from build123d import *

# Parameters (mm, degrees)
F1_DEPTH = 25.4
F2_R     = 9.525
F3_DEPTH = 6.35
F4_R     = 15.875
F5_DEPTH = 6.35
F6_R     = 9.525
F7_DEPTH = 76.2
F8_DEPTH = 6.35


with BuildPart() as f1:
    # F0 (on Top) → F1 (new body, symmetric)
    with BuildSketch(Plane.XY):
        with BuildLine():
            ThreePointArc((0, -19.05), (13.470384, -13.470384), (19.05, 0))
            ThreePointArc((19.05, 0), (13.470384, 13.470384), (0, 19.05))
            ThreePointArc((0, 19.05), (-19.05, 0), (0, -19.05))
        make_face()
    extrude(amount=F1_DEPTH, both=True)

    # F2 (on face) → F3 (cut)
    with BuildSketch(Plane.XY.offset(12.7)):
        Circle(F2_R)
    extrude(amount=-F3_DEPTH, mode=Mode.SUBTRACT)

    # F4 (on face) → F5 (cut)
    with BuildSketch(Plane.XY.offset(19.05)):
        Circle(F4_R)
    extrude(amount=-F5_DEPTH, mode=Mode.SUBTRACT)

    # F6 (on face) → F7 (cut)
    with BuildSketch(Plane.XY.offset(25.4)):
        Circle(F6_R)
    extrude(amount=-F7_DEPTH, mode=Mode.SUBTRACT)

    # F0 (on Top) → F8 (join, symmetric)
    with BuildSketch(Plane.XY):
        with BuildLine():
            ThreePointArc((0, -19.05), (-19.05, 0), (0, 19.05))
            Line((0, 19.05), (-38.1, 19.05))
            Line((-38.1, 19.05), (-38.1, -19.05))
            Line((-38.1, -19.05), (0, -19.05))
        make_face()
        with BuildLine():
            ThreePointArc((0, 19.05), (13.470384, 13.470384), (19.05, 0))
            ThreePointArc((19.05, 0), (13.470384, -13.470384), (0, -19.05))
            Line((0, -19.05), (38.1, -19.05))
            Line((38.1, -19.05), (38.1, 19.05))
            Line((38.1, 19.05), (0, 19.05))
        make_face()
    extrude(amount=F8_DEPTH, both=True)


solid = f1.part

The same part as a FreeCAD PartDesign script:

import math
import FreeCAD as App
import Part
import Sketcher
from FreeCAD import Vector
Q = App.Units.Quantity

doc = App.newDocument("Part")
params = doc.addObject("Spreadsheet::Sheet", "Params")
for row, (alias, value) in enumerate([
    ("sketch1_radius", "0.75 in"),
    ("pad1_length", "2 in"),
    ("sketch2_diameter", "0.75 in"),
    ("pocket1_length", "0.25 in"),
    ("sketch3_diameter", "1.25 in"),
    ("pocket2_length", "0.25 in"),
    ("sketch4_diameter", "0.75 in"),
    ("pocket3_length", "3 in"),
    ("sketch5_radius", "0.75 in"),
    ("pad2_length", "0.5 in"),
], start=1):
    params.set(f"A{row}", alias)
    params.set(f"B{row}", "=" + value)
    params.setAlias(f"B{row}", alias)

body = doc.addObject("PartDesign::Body", "Body")

# Sketch on XY plane
sketch1 = doc.addObject("Sketcher::SketchObject", "Sketch")
body.addObject(sketch1)
sketch1.AttachmentSupport = (doc.XY_Plane, [""])
sketch1.MapMode = "FlatFace"
sketch1.addGeometry([
    Part.ArcOfCircle(Part.Circle(Vector(0, 0, 0), Vector(0, 0, 1), 19), math.radians(-90), math.radians(0)),
    Part.ArcOfCircle(Part.Circle(Vector(0, 0, 0), Vector(0, 0, 1), 19), math.radians(0), math.radians(90)),
    Part.ArcOfCircle(Part.Circle(Vector(0, 0, 0), Vector(0, 0, 1), 19), math.radians(90), math.radians(270)),
], False)
sketch1.addConstraint([
    Sketcher.Constraint("Tangent", 0, 2, 1, 1),
    Sketcher.Constraint("Tangent", 1, 2, 2, 1),
    Sketcher.Constraint("Tangent", 2, 2, 0, 1),
    Sketcher.Constraint("Coincident", 0, 3, -1, 1),
    Sketcher.Constraint("PointOnObject", 0, 2, -1),
    Sketcher.Constraint("PointOnObject", 1, 2, -2),
    Sketcher.Constraint("PointOnObject", 2, 2, -2),
    Sketcher.Constraint("Radius", 0, Q("0.75 in")),
])
sketch1.setExpression("Constraints[7]", "Params.sketch1_radius")
pad1 = doc.addObject("PartDesign::Pad", "Pad")
body.addObject(pad1)
pad1.Profile = sketch1
pad1.setExpression("Length", "Params.pad1_length")
pad1.Midplane = True

# Sketch on XY plane
sketch2 = doc.addObject("Sketcher::SketchObject", "Sketch001")
body.addObject(sketch2)
sketch2.AttachmentSupport = (doc.XY_Plane, [""])
sketch2.MapMode = "FlatFace"
sketch2.AttachmentOffset = App.Placement(Vector(0, 0, 0.5 * 25.4), App.Rotation())
sketch2.addGeometry(Part.Circle(Vector(0, 0, 0), Vector(0, 0, 1), 10), False)
sketch2.addConstraint([
    Sketcher.Constraint("Coincident", 0, 3, -1, 1),
    Sketcher.Constraint("Diameter", 0, Q("0.75 in")),
])
sketch2.setExpression("Constraints[1]", "Params.sketch2_diameter")
pocket1 = doc.addObject("PartDesign::Pocket", "Pocket")
body.addObject(pocket1)
pocket1.Profile = sketch2
pocket1.setExpression("Length", "Params.pocket1_length")

# Sketch on XY plane
sketch3 = doc.addObject("Sketcher::SketchObject", "Sketch002")
body.addObject(sketch3)
sketch3.AttachmentSupport = (doc.XY_Plane, [""])
sketch3.MapMode = "FlatFace"
sketch3.AttachmentOffset = App.Placement(Vector(0, 0, 0.75 * 25.4), App.Rotation())
sketch3.addGeometry(Part.Circle(Vector(0, 0, 0), Vector(0, 0, 1), 16), False)
sketch3.addConstraint([
    Sketcher.Constraint("Coincident", 0, 3, -1, 1),
    Sketcher.Constraint("Diameter", 0, Q("1.25 in")),
])
sketch3.setExpression("Constraints[1]", "Params.sketch3_diameter")
pocket2 = doc.addObject("PartDesign::Pocket", "Pocket001")
body.addObject(pocket2)
pocket2.Profile = sketch3
pocket2.setExpression("Length", "Params.pocket2_length")

# Sketch on XY plane
sketch4 = doc.addObject("Sketcher::SketchObject", "Sketch003")
body.addObject(sketch4)
sketch4.AttachmentSupport = (doc.XY_Plane, [""])
sketch4.MapMode = "FlatFace"
sketch4.AttachmentOffset = App.Placement(Vector(0, 0, 1 * 25.4), App.Rotation())
sketch4.addGeometry(Part.Circle(Vector(0, 0, 0), Vector(0, 0, 1), 10), False)
sketch4.addConstraint([
    Sketcher.Constraint("Coincident", 0, 3, -1, 1),
    Sketcher.Constraint("Diameter", 0, Q("0.75 in")),
])
sketch4.setExpression("Constraints[1]", "Params.sketch4_diameter")
pocket3 = doc.addObject("PartDesign::Pocket", "Pocket002")
body.addObject(pocket3)
pocket3.Profile = sketch4
pocket3.setExpression("Length", "Params.pocket3_length")

# Sketch on XY plane
sketch5 = doc.addObject("Sketcher::SketchObject", "Sketch004")
body.addObject(sketch5)
sketch5.AttachmentSupport = (doc.XY_Plane, [""])
sketch5.MapMode = "FlatFace"
sketch5.addGeometry([
    Part.ArcOfCircle(Part.Circle(Vector(0, 0, 0), Vector(0, 0, 1), 19), math.radians(90), math.radians(270)),  # 0
    Part.LineSegment(Vector(0, 19, 0), Vector(-38, 19, 0)),  # 1
    Part.LineSegment(Vector(-38, 19, 0), Vector(-38, -19, 0)),  # 2
    Part.LineSegment(Vector(-38, -19, 0), Vector(0, -19, 0)),  # 3
    Part.ArcOfCircle(Part.Circle(Vector(0, 0, 0), Vector(0, 0, 1), 19), math.radians(0), math.radians(90)),  # 4
    Part.ArcOfCircle(Part.Circle(Vector(0, 0, 0), Vector(0, 0, 1), 19), math.radians(-90), math.radians(0)),  # 5
    Part.LineSegment(Vector(0, -19, 0), Vector(38, -19, 0)),  # 6
    Part.LineSegment(Vector(38, -19, 0), Vector(38, 19, 0)),  # 7
    Part.LineSegment(Vector(38, 19, 0), Vector(0, 19, 0)),  # 8
], False)
sketch5.addConstraint([
    Sketcher.Constraint("Tangent", 0, 1, 1, 1),
    Sketcher.Constraint("Coincident", 1, 2, 2, 1),
    Sketcher.Constraint("Coincident", 2, 2, 3, 1),
    Sketcher.Constraint("Tangent", 3, 2, 0, 2),
    Sketcher.Constraint("Tangent", 4, 1, 5, 2),
    Sketcher.Constraint("Tangent", 5, 1, 6, 1),
    Sketcher.Constraint("Coincident", 6, 2, 7, 1),
    Sketcher.Constraint("Coincident", 7, 2, 8, 1),
    Sketcher.Constraint("Tangent", 8, 2, 4, 2),
    Sketcher.Constraint("Horizontal", 1),
    Sketcher.Constraint("Vertical", 2),
    Sketcher.Constraint("Horizontal", 3),
    Sketcher.Constraint("Horizontal", 6),
    Sketcher.Constraint("Vertical", 7),
    Sketcher.Constraint("Horizontal", 8),
    Sketcher.Constraint("Coincident", 0, 3, -1, 1),
    Sketcher.Constraint("Coincident", 4, 3, -1, 1),
    Sketcher.Constraint("Coincident", 5, 1, 3, 2),
    Sketcher.Constraint("PointOnObject", 4, 1, -1),
    Sketcher.Constraint("Equal", 3, 6),
    Sketcher.Constraint("Equal", 8, 2),
    Sketcher.Constraint("Radius", 0, Q("0.75 in")),
])
sketch5.setExpression("Constraints[21]", "Params.sketch5_radius")
pad2 = doc.addObject("PartDesign::Pad", "Pad001")
body.addObject(pad2)
pad2.Profile = sketch5
pad2.setExpression("Length", "Params.pad2_length")
pad2.Midplane = True

doc.recompute()
